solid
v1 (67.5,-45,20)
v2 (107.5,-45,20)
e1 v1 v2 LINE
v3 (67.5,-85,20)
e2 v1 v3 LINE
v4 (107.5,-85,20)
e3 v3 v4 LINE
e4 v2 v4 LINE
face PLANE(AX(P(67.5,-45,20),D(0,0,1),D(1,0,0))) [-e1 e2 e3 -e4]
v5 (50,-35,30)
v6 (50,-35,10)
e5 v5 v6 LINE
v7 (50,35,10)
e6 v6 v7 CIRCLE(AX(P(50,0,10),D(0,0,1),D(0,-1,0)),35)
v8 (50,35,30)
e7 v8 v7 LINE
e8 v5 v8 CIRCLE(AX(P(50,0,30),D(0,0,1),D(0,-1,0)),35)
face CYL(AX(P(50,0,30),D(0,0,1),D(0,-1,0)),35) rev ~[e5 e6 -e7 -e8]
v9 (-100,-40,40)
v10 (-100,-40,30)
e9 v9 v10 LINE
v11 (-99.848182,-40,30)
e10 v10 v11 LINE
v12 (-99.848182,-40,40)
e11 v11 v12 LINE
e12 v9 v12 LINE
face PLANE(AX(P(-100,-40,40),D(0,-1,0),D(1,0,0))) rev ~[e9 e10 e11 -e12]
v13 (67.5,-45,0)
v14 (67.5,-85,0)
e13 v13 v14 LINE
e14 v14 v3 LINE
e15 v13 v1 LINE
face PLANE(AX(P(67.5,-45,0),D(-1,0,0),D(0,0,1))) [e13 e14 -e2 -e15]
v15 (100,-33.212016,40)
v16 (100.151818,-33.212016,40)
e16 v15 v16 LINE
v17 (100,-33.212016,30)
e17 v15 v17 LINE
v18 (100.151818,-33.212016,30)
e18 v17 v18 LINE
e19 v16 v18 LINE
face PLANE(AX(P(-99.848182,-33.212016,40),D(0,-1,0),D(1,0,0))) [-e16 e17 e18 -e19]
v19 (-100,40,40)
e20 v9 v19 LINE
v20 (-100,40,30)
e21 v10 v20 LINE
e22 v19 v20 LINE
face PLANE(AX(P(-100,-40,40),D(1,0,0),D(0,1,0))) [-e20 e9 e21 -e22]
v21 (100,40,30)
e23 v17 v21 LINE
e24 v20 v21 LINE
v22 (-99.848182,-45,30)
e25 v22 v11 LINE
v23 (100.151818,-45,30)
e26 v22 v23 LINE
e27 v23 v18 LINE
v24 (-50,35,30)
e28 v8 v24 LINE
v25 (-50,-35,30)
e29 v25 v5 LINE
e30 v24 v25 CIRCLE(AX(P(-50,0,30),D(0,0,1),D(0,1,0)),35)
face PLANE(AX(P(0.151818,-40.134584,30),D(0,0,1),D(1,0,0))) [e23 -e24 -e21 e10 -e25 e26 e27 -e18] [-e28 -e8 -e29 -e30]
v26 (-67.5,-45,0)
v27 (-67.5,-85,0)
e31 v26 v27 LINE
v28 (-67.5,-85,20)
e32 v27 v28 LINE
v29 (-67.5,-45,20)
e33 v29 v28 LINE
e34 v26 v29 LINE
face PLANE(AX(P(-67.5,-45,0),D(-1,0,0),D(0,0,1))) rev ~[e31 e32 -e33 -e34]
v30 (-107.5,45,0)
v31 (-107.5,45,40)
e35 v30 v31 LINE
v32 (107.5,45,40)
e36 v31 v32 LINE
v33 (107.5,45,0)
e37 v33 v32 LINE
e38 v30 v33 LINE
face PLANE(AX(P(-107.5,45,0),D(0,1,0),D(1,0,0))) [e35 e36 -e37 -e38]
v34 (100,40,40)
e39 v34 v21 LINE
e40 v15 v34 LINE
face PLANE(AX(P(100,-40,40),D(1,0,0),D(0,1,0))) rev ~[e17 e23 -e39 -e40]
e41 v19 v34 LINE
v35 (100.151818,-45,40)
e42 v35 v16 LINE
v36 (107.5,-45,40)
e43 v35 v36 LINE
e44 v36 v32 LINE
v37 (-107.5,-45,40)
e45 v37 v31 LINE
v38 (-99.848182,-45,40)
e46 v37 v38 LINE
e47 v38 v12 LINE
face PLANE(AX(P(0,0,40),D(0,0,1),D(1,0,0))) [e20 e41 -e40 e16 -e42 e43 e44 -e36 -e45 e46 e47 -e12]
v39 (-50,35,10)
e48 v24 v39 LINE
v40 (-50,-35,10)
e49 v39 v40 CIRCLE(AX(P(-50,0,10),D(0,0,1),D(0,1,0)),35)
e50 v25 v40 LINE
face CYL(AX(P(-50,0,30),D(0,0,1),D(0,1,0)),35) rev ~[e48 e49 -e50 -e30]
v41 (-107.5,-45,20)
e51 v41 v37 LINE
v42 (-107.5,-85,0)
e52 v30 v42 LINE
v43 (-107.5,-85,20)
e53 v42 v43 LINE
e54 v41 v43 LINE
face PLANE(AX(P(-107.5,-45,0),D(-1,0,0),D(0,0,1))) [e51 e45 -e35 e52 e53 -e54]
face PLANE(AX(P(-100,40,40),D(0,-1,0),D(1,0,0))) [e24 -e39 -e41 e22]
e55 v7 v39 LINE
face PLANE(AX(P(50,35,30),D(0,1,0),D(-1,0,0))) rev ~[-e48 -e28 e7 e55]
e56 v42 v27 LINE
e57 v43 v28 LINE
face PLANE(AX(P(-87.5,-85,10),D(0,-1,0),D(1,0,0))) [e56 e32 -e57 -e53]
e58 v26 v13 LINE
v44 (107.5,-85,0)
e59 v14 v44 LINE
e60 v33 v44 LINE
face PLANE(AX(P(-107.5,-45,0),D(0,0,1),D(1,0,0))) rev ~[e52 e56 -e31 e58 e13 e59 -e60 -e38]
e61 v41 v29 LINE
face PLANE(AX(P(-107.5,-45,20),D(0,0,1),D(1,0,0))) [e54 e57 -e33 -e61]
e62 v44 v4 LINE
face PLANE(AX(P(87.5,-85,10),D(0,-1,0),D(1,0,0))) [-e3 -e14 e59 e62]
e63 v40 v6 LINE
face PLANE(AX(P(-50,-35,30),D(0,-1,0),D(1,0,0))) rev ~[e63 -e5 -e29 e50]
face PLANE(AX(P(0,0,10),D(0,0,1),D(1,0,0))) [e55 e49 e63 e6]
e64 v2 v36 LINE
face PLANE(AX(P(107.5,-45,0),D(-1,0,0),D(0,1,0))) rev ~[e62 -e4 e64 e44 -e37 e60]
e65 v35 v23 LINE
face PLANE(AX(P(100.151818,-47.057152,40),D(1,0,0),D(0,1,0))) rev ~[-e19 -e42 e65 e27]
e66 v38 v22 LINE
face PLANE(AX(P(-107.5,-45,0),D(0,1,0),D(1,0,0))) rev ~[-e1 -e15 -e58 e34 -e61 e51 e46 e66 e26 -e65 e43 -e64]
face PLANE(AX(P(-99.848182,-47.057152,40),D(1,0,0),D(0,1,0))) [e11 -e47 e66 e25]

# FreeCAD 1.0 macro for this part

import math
import FreeCAD as App
import Part
import Sketcher
from FreeCAD import Vector
Q = App.Units.Quantity

doc = App.newDocument("Part")
params = doc.addObject("Spreadsheet::Sheet", "Params")
for row, (alias, value) in enumerate([
    ("sketch1_width", "215 mm"),
    ("sketch1_height", "90 mm"),
    ("pad1_length", "40 mm"),
    ("sketch2_width", "200 mm"),
    ("sketch2_height", "80 mm"),
    ("pocket1_length", "10 mm"),
    ("sketch3_width", "200 mm"),
    ("pocket2_length", "10 mm"),
    ("sketch4_radius", "35 mm"),
    ("sketch4_width", "100 mm"),
    ("pocket3_length", "20 mm"),
    ("sketch5_width", "40 mm"),
    ("sketch5_height", "20 mm"),
    ("pad2_length", "40 mm"),
], start=1):
    params.set(f"A{row}", alias)
    params.set(f"B{row}", "=" + value)
    params.setAlias(f"B{row}", alias)

body = doc.addObject("PartDesign::Body", "Body")

sketch1 = body.newObject("Sketcher::SketchObject", "Sketch")
sketch1.AttachmentSupport = (doc.getObject("XY_Plane"), [""])
sketch1.MapMode = "FlatFace"
sketch1.addGeometry([
    Part.LineSegment(Vector(-108, 45, 0), Vector(-108, -45, 0)),
    Part.LineSegment(Vector(-108, -45, 0), Vector(108, -45, 0)),
    Part.LineSegment(Vector(108, -45, 0), Vector(108, 45, 0)),
    Part.LineSegment(Vector(108, 45, 0), Vector(-108, 45, 0)),
], False)
sketch1.addConstraint([
    Sketcher.Constraint("Coincident", 0, 2, 1, 1),
    Sketcher.Constraint("Coincident", 1, 2, 2, 1),
    Sketcher.Constraint("Coincident", 2, 2, 3, 1),
    Sketcher.Constraint("Coincident", 3, 2, 0, 1),
    Sketcher.Constraint("Vertical", 0),
    Sketcher.Constraint("Horizontal", 1),
    Sketcher.Constraint("Vertical", 2),
    Sketcher.Constraint("Horizontal", 3),
    Sketcher.Constraint("Symmetric", 0, 2, 2, 2, -1, 1),
    Sketcher.Constraint("DistanceX", 1, 1, 1, 2, Q("215 mm")),
    Sketcher.Constraint("DistanceY", 0, 2, 0, 1, Q("90 mm")),
])
sketch1.setExpression("Constraints[9]", "Params.sketch1_width")
sketch1.setExpression("Constraints[10]", "Params.sketch1_height")
pad1 = body.newObject("PartDesign::Pad", "Pad")
pad1.Profile = sketch1
pad1.setExpression("Length", "Params.pad1_length")

sketch2 = body.newObject("Sketcher::SketchObject", "Sketch001")
sketch2.AttachmentSupport = (doc.getObject("XY_Plane"), [""])
sketch2.MapMode = "FlatFace"
sketch2.AttachmentOffset = App.Placement(Vector(0, 0, 40), App.Rotation())
sketch2.addGeometry([
    Part.LineSegment(Vector(-100, 40, 0), Vector(-100, -40, 0)),
    Part.LineSegment(Vector(-100, -40, 0), Vector(100, -40, 0)),
    Part.LineSegment(Vector(100, -40, 0), Vector(100, 40, 0)),
    Part.LineSegment(Vector(100, 40, 0), Vector(-100, 40, 0)),
], False)
sketch2.addConstraint([
    Sketcher.Constraint("Coincident", 0, 2, 1, 1),
    Sketcher.Constraint("Coincident", 1, 2, 2, 1),
    Sketcher.Constraint("Coincident", 2, 2, 3, 1),
    Sketcher.Constraint("Coincident", 3, 2, 0, 1),
    Sketcher.Constraint("Vertical", 0),
    Sketcher.Constraint("Horizontal", 1),
    Sketcher.Constraint("Vertical", 2),
    Sketcher.Constraint("Horizontal", 3),
    Sketcher.Constraint("Symmetric", 0, 2, 2, 2, -1, 1),
    Sketcher.Constraint("DistanceX", 1, 1, 1, 2, Q("200 mm")),
    Sketcher.Constraint("DistanceY", 0, 2, 0, 1, Q("80 mm")),
])
sketch2.setExpression("Constraints[9]", "Params.sketch2_width")
sketch2.setExpression("Constraints[10]", "Params.sketch2_height")
pocket1 = body.newObject("PartDesign::Pocket", "Pocket")
pocket1.Profile = sketch2
pocket1.setExpression("Length", "Params.pocket1_length")

sketch3 = body.newObject("Sketcher::SketchObject", "Sketch002")
sketch3.AttachmentSupport = (doc.getObject("XY_Plane"), [""])
sketch3.MapMode = "FlatFace"
sketch3.AttachmentOffset = App.Placement(Vector(0, 0, 40), App.Rotation())
sketch3.addGeometry([
    Part.LineSegment(Vector(-100, -33, 0), Vector(-100, -47, 0)),
    Part.LineSegment(Vector(-100, -47, 0), Vector(100, -47, 0)),
    Part.LineSegment(Vector(100, -47, 0), Vector(100, -33, 0)),
    Part.LineSegment(Vector(100, -33, 0), Vector(-100, -33, 0)),
], False)
sketch3.addConstraint([
    Sketcher.Constraint("Coincident", 0, 2, 1, 1),
    Sketcher.Constraint("Coincident", 1, 2, 2, 1),
    Sketcher.Constraint("Coincident", 2, 2, 3, 1),
    Sketcher.Constraint("Coincident", 3, 2, 0, 1),
    Sketcher.Constraint("Vertical", 0),
    Sketcher.Constraint("Horizontal", 1),
    Sketcher.Constraint("Vertical", 2),
    Sketcher.Constraint("Horizontal", 3),
    Sketcher.Constraint("DistanceX", 1, 1, 1, 2, Q("200 mm")),
    Sketcher.Constraint("DistanceY", 0, 2, 0, 1, Q("13.845135 mm")),
    Sketcher.Constraint("DistanceX", 0, 2, -1, 1, Q("99.848182 mm")),
    Sketcher.Constraint("DistanceY", 0, 2, -1, 1, Q("47.057152 mm")),
])
sketch3.setExpression("Constraints[8]", "Params.sketch3_width")
pocket2 = body.newObject("PartDesign::Pocket", "Pocket001")
pocket2.Profile = sketch3
pocket2.setExpression("Length", "Params.pocket2_length")

sketch4 = body.newObject("Sketcher::SketchObject", "Sketch003")
sketch4.AttachmentSupport = (doc.getObject("XY_Plane"), [""])
sketch4.MapMode = "FlatFace"
sketch4.AttachmentOffset = App.Placement(Vector(0, 0, 30), App.Rotation())
sketch4.addGeometry([
    Part.ArcOfCircle(Part.Circle(Vector(-50, 0, 0), Vector(0, 0, 1), 35), math.radians(90), math.radians(270)),
    Part.LineSegment(Vector(-50, -35, 0), Vector(50, -35, 0)),
    Part.ArcOfCircle(Part.Circle(Vector(50, 0, 0), Vector(0, 0, 1), 35), math.radians(-90), math.radians(90)),
    Part.LineSegment(Vector(50, 35, 0), Vector(-50, 35, 0)),
], False)
sketch4.addConstraint([
    Sketcher.Constraint("Tangent", 0, 2, 1, 1),
    Sketcher.Constraint("Tangent", 1, 2, 2, 1),
    Sketcher.Constraint("Tangent", 2, 2, 3, 1),
    Sketcher.Constraint("Tangent", 3, 2, 0, 1),
    Sketcher.Constraint("Horizontal", 1),
    Sketcher.Constraint("Horizontal", 3),
    Sketcher.Constraint("Symmetric", 0, 3, 2, 3, -1, 1),
    Sketcher.Constraint("Radius", 0, Q("35 mm")),
    Sketcher.Constraint("DistanceX", 1, 1, 1, 2, Q("100 mm")),
])
sketch4.setExpression("Constraints[7]", "Params.sketch4_radius")
sketch4.setExpression("Constraints[8]", "Params.sketch4_width")
pocket3 = body.newObject("PartDesign::Pocket", "Pocket002")
pocket3.Profile = sketch4
pocket3.setExpression("Length", "Params.pocket3_length")

sketch5 = body.newObject("Sketcher::SketchObject", "Sketch004")
sketch5.AttachmentSupport = (doc.getObject("XZ_Plane"), [""])
sketch5.MapMode = "FlatFace"
sketch5.AttachmentOffset = App.Placement(Vector(0, 0, 45), App.Rotation())
sketch5.addGeometry([
    Part.LineSegment(Vector(-108, 20, 0), Vector(-108, 0, 0)),
    Part.LineSegment(Vector(-108, 0, 0), Vector(-68, 0, 0)),
    Part.LineSegment(Vector(-68, 0, 0), Vector(-68, 20, 0)),
    Part.LineSegment(Vector(-68, 20, 0), Vector(-108, 20, 0)),
    Part.LineSegment(Vector(68, 20, 0), Vector(68, 0, 0)),
    Part.LineSegment(Vector(68, 0, 0), Vector(108, 0, 0)),
    Part.LineSegment(Vector(108, 0, 0), Vector(108, 20, 0)),
    Part.LineSegment(Vector(108, 20, 0), Vector(68, 20, 0)),
], False)
sketch5.addConstraint([
    Sketcher.Constraint("Coincident", 0, 2, 1, 1),
    Sketcher.Constraint("Coincident", 1, 2, 2, 1),
    Sketcher.Constraint("Coincident", 2, 2, 3, 1),
    Sketcher.Constraint("Coincident", 3, 2, 0, 1),
    Sketcher.Constraint("Coincident", 4, 2, 5, 1),
    Sketcher.Constraint("Coincident", 5, 2, 6, 1),
    Sketcher.Constraint("Coincident", 6, 2, 7, 1),
    Sketcher.Constraint("Coincident", 7, 2, 4, 1),
    Sketcher.Constraint("Vertical", 0),
    Sketcher.Constraint("Horizontal", 1),
    Sketcher.Constraint("Vertical", 2),
    Sketcher.Constraint("Horizontal", 3),
    Sketcher.Constraint("Vertical", 4),
    Sketcher.Constraint("Horizontal", 5),
    Sketcher.Constraint("Vertical", 6),
    Sketcher.Constraint("Horizontal", 7),
    Sketcher.Constraint("Symmetric", 1, 2, 4, 2, -1, 1),
    Sketcher.Constraint("Symmetric", 0, 2, 5, 2, -2),
    Sketcher.Constraint("Horizontal", 3, 2, 6, 2),
    Sketcher.Constraint("DistanceX", 1, 1, 1, 2, Q("40 mm")),
    Sketcher.Constraint("DistanceY", 0, 2, 0, 1, Q("20 mm")),
    Sketcher.Constraint("DistanceX", 1, 2, 4, 2, Q("135 mm")),
])
sketch5.setExpression("Constraints[19]", "Params.sketch5_width")
sketch5.setExpression("Constraints[20]", "Params.sketch5_height")
pad2 = body.newObject("PartDesign::Pad", "Pad001")
pad2.Profile = sketch5
pad2.setExpression("Length", "Params.pad2_length")

doc.recompute()
